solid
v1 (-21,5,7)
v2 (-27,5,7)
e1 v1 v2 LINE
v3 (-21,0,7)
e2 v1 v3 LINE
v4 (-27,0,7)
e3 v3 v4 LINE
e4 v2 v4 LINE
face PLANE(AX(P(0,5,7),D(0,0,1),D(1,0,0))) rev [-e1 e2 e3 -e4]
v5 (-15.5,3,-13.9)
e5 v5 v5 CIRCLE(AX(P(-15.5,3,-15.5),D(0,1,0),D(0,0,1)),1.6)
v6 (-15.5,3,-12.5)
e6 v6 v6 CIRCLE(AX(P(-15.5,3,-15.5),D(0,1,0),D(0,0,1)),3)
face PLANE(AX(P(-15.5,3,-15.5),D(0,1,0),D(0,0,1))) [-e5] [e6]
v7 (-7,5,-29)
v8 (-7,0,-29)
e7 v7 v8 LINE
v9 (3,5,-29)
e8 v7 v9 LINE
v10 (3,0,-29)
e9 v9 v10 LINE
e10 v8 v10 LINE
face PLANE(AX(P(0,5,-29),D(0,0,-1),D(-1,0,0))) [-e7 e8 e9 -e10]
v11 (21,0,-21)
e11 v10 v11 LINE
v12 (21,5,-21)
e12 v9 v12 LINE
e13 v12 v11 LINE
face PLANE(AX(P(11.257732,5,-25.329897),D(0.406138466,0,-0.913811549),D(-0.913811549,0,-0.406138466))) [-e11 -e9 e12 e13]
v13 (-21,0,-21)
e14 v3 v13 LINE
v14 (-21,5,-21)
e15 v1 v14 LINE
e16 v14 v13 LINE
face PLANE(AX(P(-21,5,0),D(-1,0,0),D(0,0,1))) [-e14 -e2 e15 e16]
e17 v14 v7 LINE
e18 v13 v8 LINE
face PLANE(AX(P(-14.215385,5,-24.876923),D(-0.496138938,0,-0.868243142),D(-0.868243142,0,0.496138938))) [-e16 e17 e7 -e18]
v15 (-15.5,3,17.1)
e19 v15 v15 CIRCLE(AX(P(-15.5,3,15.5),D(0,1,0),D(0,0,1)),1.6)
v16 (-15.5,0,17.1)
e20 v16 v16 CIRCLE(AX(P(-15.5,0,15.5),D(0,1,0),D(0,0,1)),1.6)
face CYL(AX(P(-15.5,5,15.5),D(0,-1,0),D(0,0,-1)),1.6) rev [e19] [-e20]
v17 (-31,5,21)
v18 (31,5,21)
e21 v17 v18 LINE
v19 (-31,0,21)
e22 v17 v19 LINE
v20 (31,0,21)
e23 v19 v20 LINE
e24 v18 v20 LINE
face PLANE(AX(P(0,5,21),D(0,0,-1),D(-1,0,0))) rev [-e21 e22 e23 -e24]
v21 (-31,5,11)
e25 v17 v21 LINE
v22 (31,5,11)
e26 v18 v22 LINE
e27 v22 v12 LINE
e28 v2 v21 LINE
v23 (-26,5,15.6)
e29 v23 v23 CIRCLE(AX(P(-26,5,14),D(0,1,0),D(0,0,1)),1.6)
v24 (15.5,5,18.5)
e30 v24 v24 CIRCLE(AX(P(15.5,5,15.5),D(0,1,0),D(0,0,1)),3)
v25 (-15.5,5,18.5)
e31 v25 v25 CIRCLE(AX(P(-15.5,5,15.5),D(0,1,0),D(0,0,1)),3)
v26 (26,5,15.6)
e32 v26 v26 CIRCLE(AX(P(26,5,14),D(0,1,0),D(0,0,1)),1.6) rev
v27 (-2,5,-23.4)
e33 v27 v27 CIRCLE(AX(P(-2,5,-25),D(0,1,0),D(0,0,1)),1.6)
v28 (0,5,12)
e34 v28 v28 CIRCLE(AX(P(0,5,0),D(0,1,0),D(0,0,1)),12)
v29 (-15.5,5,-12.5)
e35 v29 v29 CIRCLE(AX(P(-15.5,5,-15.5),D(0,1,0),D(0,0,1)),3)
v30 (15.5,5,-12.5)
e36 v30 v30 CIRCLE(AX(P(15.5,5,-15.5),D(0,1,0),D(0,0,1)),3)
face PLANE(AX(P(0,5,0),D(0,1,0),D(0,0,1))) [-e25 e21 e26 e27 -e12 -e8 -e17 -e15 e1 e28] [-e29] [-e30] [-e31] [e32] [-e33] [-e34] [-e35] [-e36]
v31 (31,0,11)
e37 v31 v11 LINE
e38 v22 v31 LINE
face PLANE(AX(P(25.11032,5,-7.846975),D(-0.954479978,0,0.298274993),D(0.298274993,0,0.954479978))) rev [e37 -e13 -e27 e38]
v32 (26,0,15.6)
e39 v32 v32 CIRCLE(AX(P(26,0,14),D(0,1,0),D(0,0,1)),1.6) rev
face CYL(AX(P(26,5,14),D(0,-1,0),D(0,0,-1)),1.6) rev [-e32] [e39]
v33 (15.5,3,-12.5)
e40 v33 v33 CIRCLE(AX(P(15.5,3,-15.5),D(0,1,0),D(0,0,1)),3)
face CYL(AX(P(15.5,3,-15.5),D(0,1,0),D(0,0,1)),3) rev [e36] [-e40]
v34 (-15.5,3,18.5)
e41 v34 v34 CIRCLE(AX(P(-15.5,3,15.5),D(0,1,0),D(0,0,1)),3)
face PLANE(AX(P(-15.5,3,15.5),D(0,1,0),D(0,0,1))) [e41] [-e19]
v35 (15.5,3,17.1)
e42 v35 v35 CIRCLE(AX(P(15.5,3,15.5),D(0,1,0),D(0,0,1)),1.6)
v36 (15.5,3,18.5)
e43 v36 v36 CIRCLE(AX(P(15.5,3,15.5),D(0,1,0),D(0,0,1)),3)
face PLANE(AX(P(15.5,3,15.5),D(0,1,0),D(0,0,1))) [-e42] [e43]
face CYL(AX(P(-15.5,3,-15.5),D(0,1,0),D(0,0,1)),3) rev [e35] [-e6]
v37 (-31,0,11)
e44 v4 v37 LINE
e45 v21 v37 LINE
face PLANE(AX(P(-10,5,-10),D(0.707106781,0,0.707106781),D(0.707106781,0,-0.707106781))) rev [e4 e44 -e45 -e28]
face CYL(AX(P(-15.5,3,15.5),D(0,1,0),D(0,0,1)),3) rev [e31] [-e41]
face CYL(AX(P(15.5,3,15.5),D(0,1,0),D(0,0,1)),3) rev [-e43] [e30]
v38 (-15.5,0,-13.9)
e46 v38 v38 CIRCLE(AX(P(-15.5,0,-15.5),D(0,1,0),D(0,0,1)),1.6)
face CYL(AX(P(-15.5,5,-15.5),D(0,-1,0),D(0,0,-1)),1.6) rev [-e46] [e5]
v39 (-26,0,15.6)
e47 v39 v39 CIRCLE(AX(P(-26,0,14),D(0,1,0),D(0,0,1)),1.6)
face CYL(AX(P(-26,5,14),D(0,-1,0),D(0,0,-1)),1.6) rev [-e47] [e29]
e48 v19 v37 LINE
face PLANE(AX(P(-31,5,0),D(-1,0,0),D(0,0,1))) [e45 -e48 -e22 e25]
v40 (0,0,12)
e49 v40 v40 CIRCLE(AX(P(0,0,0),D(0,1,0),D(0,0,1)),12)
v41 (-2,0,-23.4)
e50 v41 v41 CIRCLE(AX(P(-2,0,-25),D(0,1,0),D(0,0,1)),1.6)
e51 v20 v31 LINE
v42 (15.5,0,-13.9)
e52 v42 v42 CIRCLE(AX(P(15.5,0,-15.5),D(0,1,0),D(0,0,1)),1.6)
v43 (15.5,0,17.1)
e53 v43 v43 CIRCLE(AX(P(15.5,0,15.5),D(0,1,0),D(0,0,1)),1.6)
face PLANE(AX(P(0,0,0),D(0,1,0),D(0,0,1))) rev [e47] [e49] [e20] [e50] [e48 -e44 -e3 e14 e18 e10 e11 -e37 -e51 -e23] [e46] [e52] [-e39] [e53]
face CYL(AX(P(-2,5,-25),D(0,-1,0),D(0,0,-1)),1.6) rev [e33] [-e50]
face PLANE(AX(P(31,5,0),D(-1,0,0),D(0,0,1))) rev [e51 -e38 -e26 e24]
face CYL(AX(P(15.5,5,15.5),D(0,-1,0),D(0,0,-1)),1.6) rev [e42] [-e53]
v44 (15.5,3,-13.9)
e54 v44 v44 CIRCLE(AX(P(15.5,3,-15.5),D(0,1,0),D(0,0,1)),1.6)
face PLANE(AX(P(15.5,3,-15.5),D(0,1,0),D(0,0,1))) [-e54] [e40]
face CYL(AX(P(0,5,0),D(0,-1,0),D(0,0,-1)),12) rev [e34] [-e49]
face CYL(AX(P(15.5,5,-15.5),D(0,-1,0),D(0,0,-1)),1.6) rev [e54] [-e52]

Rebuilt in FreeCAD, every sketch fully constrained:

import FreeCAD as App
import Part
import Sketcher
from FreeCAD import Vector
Q = App.Units.Quantity

doc = App.newDocument("Part")
body = doc.addObject("PartDesign::Body", "Body")

# Sketch on XZ plane
sketch1 = body.newObject("Sketcher::SketchObject", "Sketch")
sketch1.AttachmentSupport = (doc.getObject("XZ_Plane"), [""])
sketch1.MapMode = "FlatFace"
sketch1.addGeometry([
    Part.LineSegment(Vector(-21, -21, 0), Vector(-21, 7, 0)),  # 0
    Part.LineSegment(Vector(-21, 7, 0), Vector(-27, 7, 0)),  # 1
    Part.LineSegment(Vector(-27, 7, 0), Vector(-31, 11, 0)),  # 2
    Part.LineSegment(Vector(-31, 11, 0), Vector(-31, 21, 0)),  # 3
    Part.LineSegment(Vector(-31, 21, 0), Vector(31, 21, 0)),  # 4
    Part.LineSegment(Vector(31, 21, 0), Vector(31, 11, 0)),  # 5
    Part.LineSegment(Vector(31, 11, 0), Vector(21, -21, 0)),  # 6
    Part.LineSegment(Vector(21, -21, 0), Vector(3, -29, 0)),  # 7
    Part.LineSegment(Vector(3, -29, 0), Vector(-7, -29, 0)),  # 8
    Part.LineSegment(Vector(-7, -29, 0), Vector(-21, -21, 0)),  # 9
    Part.Circle(Vector(-26, 14, 0), Vector(0, 0, 1), 1.6),  # 10
    Part.Circle(Vector(-15.5, 15.5, 0), Vector(0, 0, 1), 1.6),  # 11
    Part.Circle(Vector(15.5, 15.5, 0), Vector(0, 0, 1), 1.6),  # 12
    Part.Circle(Vector(26, 14, 0), Vector(0, 0, 1), 1.6),  # 13
    Part.Circle(Vector(0, 0, 0), Vector(0, 0, 1), 12),  # 14
    Part.Circle(Vector(-15.5, -15.5, 0), Vector(0, 0, 1), 1.6),  # 15
    Part.Circle(Vector(-2, -25, 0), Vector(0, 0, 1), 1.6),  # 16
    Part.Circle(Vector(15.5, -15.5, 0), Vector(0, 0, 1), 1.6),  # 17
], False)
sketch1.addConstraint([
    Sketcher.Constraint("Coincident", 0, 2, 1, 1),
    Sketcher.Constraint("Coincident", 1, 2, 2, 1),
    Sketcher.Constraint("Coincident", 2, 2, 3, 1),
    Sketcher.Constraint("Coincident", 3, 2, 4, 1),
    Sketcher.Constraint("Coincident", 4, 2, 5, 1),
    Sketcher.Constraint("Coincident", 5, 2, 6, 1),
    Sketcher.Constraint("Coincident", 6, 2, 7, 1),
    Sketcher.Constraint("Coincident", 7, 2, 8, 1),
    Sketcher.Constraint("Coincident", 8, 2, 9, 1),
    Sketcher.Constraint("Coincident", 9, 2, 0, 1),
    Sketcher.Constraint("Vertical", 0),
    Sketcher.Constraint("Horizontal", 1),
    Sketcher.Constraint("Vertical", 3),
    Sketcher.Constraint("Horizontal", 4),
    Sketcher.Constraint("Vertical", 5),
    Sketcher.Constraint("Horizontal", 8),
    Sketcher.Constraint("Coincident", 14, 3, -1, 1),
    Sketcher.Constraint("Equal", 10, 11),
    Sketcher.Constraint("Equal", 11, 12),
    Sketcher.Constraint("Equal", 12, 13),
    Sketcher.Constraint("Equal", 13, 15),
    Sketcher.Constraint("Equal", 15, 16),
    Sketcher.Constraint("Equal", 16, 17),
    Sketcher.Constraint("Symmetric", 12, 3, 15, 3, -1, 1),
    Sketcher.Constraint("Symmetric", 11, 3, 17, 3, -1, 1),
    Sketcher.Constraint("Symmetric", 11, 3, 12, 3, -2),
    Sketcher.Constraint("Symmetric", 10, 3, 13, 3, -2),
    Sketcher.Constraint("Symmetric", 2, 2, 5, 2, -2),
    Sketcher.Constraint("Symmetric", 6, 2, 9, 2, -2),
    Sketcher.Constraint("Equal", 8, 3),
    Sketcher.Constraint("Diameter", 14, 24.0),
    Sketcher.Constraint("Diameter", 10, 3.2),
    Sketcher.Constraint("DistanceX", 1, 2, 1, 1, 6.0),
    Sketcher.Constraint("DistanceX", 4, 1, 4, 2, 62.0),
    Sketcher.Constraint("DistanceX", 8, 2, 8, 1, 10.0),
    Sketcher.Constraint("DistanceY", 0, 1, 0, 2, 28.0),
    Sketcher.Constraint("Angle", 2, Q("135 deg")),
    Sketcher.Constraint("DistanceX", 10, 3, -1, 1, 26.0),
    Sketcher.Constraint("DistanceY", -1, 1, 10, 3, 14.0),
    Sketcher.Constraint("DistanceX", 16, 3, -1, 1, 2.0),
    Sketcher.Constraint("DistanceY", 16, 3, -1, 1, 25.0),
    Sketcher.Constraint("DistanceX", 0, 2, -1, 1, 21.0),
    Sketcher.Constraint("DistanceY", -1, 1, 0, 2, 7.0),
    Sketcher.Constraint("DistanceX", -1, 1, 7, 2, 3.0),
    Sketcher.Constraint("DistanceY", 7, 2, -1, 1, 29.0),
    Sketcher.Constraint("DistanceX", 11, 3, 12, 3, 31.0),
    Sketcher.Constraint("DistanceY", 15, 3, 11, 3, 31.0),
])
pad1 = body.newObject("PartDesign::Pad", "Pad")
pad1.Profile = sketch1
pad1.Length = 5
pad1.Reversed = True

# Sketch on XZ plane
sketch2 = body.newObject("Sketcher::SketchObject", "Sketch001")
sketch2.AttachmentSupport = (doc.getObject("XZ_Plane"), [""])
sketch2.MapMode = "FlatFace"
sketch2.AttachmentOffset = App.Placement(Vector(0, 0, -5), App.Rotation())
sketch2.addGeometry([
    Part.Circle(Vector(-15.5, -15.5, 0), Vector(0, 0, 1), 3),
    Part.Circle(Vector(15.5, -15.5, 0), Vector(0, 0, 1), 3),
    Part.Circle(Vector(15.5, 15.5, 0), Vector(0, 0, 1), 3),
    Part.Circle(Vector(-15.5, 15.5, 0), Vector(0, 0, 1), 3),
], False)
sketch2.addConstraint([
    Sketcher.Constraint("Equal", 0, 1),
    Sketcher.Constraint("Equal", 1, 2),
    Sketcher.Constraint("Equal", 2, 3),
    Sketcher.Constraint("Symmetric", 0, 3, 2, 3, -1, 1),
    Sketcher.Constraint("Symmetric", 1, 3, 3, 3, -1, 1),
    Sketcher.Constraint("Symmetric", 0, 3, 1, 3, -2),
    Sketcher.Constraint("Diameter", 0, 6.0),
    Sketcher.Constraint("DistanceX", 0, 3, 1, 3, 31.0),
    Sketcher.Constraint("DistanceY", 1, 3, 2, 3, 31.0),
])
pocket1 = body.newObject("PartDesign::Pocket", "Pocket")
pocket1.Profile = sketch2
pocket1.Length = 2
pocket1.Reversed = True

doc.recompute()
